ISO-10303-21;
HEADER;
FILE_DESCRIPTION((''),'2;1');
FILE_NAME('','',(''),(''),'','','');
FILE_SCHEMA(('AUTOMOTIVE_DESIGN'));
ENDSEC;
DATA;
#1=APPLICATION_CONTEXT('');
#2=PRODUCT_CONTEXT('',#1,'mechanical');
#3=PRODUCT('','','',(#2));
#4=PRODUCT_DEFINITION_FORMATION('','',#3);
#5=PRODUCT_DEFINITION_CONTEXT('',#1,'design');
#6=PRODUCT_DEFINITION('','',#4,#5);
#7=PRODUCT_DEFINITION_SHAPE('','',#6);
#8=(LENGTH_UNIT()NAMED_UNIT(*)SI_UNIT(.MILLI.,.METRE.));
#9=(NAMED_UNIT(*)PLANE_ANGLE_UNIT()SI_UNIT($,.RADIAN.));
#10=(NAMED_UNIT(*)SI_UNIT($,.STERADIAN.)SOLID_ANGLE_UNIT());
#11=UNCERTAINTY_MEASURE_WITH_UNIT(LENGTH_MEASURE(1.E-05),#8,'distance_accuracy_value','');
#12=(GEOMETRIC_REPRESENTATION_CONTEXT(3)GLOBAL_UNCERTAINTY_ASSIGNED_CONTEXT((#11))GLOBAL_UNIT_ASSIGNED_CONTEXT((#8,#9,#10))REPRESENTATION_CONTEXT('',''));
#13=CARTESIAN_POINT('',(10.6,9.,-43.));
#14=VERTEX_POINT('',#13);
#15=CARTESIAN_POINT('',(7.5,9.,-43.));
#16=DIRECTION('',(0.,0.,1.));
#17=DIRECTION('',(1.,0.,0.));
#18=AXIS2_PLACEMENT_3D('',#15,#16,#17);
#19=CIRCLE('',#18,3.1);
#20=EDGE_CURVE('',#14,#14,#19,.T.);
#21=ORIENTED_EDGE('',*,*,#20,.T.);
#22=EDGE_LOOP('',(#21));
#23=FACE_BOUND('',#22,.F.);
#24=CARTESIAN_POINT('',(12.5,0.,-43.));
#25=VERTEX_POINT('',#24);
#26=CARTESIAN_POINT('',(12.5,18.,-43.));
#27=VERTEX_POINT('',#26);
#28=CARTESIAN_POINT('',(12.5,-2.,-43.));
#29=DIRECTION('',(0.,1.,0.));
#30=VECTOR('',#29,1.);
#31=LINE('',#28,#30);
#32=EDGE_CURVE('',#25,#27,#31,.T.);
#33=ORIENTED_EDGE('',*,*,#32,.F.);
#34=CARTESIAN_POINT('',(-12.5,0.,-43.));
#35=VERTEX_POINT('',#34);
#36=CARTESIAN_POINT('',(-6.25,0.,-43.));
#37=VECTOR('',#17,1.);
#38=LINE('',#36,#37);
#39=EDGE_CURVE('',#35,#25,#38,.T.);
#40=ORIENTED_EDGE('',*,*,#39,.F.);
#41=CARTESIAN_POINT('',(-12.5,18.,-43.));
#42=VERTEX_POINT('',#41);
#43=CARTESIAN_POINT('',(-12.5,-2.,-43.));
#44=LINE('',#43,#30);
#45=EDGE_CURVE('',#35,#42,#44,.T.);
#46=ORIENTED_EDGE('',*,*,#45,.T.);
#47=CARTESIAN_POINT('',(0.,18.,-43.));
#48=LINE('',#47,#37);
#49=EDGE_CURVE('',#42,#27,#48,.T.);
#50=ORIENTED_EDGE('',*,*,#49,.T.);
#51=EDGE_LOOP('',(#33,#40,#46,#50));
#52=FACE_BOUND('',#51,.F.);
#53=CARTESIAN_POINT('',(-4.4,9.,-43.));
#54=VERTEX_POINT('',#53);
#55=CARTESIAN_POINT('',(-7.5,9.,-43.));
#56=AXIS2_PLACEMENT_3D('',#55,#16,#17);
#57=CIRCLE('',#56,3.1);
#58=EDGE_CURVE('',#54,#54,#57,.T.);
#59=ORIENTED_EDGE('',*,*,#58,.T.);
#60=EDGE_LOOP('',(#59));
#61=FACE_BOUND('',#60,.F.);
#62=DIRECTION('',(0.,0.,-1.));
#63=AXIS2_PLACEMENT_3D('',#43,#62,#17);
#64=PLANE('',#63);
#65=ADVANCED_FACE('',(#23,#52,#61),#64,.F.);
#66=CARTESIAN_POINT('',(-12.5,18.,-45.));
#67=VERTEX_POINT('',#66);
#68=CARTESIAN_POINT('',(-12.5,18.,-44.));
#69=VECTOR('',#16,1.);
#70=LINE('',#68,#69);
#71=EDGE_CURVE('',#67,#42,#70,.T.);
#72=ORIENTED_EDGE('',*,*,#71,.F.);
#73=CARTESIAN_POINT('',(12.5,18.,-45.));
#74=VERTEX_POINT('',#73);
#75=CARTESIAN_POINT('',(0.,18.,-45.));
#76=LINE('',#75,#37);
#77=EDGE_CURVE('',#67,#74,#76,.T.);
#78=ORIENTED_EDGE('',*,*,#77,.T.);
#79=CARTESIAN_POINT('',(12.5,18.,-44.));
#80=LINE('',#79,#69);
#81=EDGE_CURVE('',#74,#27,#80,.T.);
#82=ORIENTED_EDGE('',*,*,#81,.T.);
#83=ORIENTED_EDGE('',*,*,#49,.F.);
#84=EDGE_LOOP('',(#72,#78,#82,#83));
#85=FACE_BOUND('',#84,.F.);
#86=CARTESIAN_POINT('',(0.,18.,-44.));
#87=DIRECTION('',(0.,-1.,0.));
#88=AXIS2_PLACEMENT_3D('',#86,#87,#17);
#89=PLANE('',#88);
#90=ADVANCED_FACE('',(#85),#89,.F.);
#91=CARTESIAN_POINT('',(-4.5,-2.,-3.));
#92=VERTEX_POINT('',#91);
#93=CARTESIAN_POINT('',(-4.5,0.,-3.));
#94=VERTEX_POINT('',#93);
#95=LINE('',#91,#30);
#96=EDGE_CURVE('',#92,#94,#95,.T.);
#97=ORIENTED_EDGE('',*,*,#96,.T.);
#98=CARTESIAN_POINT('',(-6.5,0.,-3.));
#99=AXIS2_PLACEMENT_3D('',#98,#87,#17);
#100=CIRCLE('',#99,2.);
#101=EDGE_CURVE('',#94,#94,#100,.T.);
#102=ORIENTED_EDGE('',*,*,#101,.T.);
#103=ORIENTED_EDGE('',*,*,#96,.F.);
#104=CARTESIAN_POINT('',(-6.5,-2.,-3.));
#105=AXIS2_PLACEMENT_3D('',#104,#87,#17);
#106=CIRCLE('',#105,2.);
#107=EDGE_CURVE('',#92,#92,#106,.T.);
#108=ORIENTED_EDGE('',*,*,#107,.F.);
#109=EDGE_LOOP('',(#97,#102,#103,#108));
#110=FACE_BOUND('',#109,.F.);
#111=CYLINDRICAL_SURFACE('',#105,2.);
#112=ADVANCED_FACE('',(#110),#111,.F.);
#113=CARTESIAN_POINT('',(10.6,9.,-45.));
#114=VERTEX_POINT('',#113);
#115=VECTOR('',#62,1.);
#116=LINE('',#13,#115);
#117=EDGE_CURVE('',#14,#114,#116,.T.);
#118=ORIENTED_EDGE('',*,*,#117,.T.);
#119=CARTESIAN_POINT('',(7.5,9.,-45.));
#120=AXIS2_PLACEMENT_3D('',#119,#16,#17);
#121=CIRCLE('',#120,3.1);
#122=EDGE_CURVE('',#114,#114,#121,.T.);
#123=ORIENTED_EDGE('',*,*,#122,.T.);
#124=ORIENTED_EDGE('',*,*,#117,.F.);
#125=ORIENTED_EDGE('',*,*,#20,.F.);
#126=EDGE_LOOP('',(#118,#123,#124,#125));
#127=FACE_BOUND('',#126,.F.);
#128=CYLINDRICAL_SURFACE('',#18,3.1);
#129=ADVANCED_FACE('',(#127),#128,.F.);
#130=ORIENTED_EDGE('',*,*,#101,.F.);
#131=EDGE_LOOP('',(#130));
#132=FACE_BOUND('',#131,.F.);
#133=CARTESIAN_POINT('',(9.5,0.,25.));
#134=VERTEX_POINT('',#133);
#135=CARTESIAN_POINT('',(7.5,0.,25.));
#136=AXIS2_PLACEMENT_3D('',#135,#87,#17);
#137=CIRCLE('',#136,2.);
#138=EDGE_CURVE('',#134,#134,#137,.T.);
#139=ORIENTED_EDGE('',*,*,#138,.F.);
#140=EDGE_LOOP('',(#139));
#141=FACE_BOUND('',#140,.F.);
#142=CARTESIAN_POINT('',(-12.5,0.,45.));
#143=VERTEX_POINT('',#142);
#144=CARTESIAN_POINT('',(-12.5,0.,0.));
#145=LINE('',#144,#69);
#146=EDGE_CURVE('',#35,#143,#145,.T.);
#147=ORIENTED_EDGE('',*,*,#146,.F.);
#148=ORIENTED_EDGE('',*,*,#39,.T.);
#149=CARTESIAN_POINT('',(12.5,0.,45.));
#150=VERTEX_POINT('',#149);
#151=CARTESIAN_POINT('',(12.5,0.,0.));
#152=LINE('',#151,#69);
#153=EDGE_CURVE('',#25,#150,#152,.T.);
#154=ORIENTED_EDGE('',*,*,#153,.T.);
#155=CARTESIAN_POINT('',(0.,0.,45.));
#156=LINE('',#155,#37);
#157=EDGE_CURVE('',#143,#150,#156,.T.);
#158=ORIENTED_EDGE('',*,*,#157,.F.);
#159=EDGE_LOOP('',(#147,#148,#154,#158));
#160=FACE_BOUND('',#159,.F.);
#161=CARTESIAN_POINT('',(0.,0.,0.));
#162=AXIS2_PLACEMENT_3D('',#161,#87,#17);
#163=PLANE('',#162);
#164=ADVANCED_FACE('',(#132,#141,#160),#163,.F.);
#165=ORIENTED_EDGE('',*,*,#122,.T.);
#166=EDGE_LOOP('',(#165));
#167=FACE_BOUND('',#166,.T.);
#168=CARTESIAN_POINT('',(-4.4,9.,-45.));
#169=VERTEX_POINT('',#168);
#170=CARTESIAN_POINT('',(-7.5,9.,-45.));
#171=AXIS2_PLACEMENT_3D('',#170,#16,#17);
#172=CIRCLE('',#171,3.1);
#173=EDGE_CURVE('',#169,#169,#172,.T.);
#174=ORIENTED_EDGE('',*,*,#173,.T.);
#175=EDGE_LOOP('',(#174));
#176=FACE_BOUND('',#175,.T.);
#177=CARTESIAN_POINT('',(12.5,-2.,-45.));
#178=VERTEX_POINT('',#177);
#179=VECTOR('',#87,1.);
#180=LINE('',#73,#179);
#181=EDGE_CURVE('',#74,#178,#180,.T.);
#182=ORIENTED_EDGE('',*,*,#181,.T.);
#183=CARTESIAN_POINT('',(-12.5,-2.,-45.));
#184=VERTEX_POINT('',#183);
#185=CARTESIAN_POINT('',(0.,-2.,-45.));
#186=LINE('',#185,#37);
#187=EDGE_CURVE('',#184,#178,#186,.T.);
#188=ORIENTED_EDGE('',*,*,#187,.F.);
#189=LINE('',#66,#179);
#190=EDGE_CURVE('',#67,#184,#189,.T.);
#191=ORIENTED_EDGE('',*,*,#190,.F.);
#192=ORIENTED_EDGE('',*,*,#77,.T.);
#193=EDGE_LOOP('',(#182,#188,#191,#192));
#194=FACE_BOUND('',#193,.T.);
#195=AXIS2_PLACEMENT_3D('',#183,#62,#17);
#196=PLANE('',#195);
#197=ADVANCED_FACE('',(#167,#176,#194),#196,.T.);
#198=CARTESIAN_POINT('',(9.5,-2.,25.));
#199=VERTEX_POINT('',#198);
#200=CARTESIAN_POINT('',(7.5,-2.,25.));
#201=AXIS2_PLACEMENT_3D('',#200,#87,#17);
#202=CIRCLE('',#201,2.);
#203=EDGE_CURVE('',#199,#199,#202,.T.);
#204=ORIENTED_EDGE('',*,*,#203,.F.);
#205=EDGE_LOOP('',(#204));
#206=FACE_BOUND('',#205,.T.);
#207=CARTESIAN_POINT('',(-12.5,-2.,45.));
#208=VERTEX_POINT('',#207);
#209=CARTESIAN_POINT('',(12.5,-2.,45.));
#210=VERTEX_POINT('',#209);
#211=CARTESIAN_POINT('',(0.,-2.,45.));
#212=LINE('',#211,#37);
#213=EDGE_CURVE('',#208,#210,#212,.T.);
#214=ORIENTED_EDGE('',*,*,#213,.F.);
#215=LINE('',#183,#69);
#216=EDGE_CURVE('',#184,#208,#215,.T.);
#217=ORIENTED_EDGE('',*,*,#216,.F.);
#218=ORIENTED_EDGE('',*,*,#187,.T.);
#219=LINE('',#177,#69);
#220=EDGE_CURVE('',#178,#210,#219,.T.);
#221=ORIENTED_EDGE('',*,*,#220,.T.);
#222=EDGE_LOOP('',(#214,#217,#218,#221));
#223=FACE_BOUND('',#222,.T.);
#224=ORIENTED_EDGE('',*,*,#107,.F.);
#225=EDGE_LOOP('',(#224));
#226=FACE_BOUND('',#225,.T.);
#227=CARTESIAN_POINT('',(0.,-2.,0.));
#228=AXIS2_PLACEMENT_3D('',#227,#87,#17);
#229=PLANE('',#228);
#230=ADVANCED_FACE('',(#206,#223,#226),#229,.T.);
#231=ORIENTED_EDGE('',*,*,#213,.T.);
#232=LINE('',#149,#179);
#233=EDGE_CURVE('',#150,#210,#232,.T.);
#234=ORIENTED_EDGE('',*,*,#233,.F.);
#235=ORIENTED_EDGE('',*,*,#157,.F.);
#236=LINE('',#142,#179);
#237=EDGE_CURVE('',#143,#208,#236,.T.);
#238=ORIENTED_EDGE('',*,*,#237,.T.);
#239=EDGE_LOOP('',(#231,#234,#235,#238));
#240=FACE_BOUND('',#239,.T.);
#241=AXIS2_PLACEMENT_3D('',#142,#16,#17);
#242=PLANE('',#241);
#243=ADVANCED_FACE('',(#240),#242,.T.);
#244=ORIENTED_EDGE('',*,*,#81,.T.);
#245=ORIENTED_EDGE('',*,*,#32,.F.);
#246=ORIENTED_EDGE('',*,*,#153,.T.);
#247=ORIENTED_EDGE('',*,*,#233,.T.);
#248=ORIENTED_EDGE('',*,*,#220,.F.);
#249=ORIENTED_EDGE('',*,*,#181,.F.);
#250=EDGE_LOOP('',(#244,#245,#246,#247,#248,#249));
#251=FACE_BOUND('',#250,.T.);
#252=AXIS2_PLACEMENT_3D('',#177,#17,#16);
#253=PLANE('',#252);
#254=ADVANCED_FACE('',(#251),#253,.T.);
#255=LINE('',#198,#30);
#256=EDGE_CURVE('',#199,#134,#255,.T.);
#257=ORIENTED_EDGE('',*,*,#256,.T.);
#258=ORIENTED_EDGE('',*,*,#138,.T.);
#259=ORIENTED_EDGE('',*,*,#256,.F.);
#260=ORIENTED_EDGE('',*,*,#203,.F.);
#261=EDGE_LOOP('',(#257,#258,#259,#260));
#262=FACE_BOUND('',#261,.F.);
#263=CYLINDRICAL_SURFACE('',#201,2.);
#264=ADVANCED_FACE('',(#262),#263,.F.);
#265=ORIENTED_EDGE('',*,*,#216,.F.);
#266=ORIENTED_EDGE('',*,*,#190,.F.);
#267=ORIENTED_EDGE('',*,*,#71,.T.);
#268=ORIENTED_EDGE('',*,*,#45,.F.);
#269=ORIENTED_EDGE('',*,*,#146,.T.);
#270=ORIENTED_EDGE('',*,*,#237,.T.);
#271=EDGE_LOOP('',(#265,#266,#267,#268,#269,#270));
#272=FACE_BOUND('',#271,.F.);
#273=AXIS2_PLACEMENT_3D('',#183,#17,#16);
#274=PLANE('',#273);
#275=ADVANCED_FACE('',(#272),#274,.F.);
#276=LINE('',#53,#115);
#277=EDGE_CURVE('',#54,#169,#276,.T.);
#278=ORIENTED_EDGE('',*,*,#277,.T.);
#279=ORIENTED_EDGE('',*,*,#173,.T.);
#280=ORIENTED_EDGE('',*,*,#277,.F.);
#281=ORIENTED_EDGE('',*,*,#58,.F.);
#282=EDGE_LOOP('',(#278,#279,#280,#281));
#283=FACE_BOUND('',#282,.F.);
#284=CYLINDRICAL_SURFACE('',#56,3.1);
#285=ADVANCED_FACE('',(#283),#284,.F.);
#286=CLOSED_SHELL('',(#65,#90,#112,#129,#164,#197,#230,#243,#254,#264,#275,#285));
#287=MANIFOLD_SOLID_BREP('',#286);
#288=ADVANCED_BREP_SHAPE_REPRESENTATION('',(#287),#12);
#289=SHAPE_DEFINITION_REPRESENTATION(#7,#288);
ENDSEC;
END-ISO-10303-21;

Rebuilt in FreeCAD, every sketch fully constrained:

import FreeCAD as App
import Part
import Sketcher

V = App.Vector
Q = App.Units.Quantity


def add_polygon(sketch, points):
    """Adds a closed chain of lines whose ends are joined by coincident constraints."""
    first, n = sketch.GeometryCount, len(points)
    for a, b in zip(points, points[1:] + points[:1]):
        sketch.addGeometry(Part.LineSegment(App.Vector(*a, 0), App.Vector(*b, 0)), False)
    for i in range(n):
        sketch.addConstraint(Sketcher.Constraint("Coincident", first + i, 2, first + (i + 1) % n, 1))

doc = App.newDocument("Part")
params = doc.addObject("Spreadsheet::Sheet", "Params")
for row, (alias, value) in enumerate([
    ("sketch1_width", "25 mm"),
    ("sketch1_height", "90 mm"),
    ("pad1_length", "2 mm"),
    ("sketch2_width", "25 mm"),
    ("sketch2_height", "2 mm"),
    ("pad2_length", "20 mm"),
    ("sketch3_diameter", "4 mm"),
    ("pocket1_length", "25 mm"),
    ("sketch4_diameter", "6.2 mm"),
    ("pocket2_length", "25 mm"),
], start=1):
    params.set(f"A{row}", alias)
    params.set(f"B{row}", "=" + value)
    params.setAlias(f"B{row}", alias)

body = doc.addObject("PartDesign::Body", "Body")

# Sketch on XZ plane
sketch1 = doc.addObject("Sketcher::SketchObject", "Sketch")
body.addObject(sketch1)
sketch1.AttachmentSupport = (doc.XZ_Plane, [""])
sketch1.MapMode = "FlatFace"
add_polygon(sketch1, [(-12, 45), (-12, -45), (12, -45), (12, 45)])  # lines 0-3
sketch1.addConstraint([
    Sketcher.Constraint("Vertical", 0),
    Sketcher.Constraint("Horizontal", 1),
    Sketcher.Constraint("Vertical", 2),
    Sketcher.Constraint("Horizontal", 3),
    Sketcher.Constraint("Symmetric", 0, 2, 2, 2, -1, 1),
    Sketcher.Constraint("DistanceX", 1, 1, 1, 2, Q("25 mm")),
    Sketcher.Constraint("DistanceY", 0, 2, 0, 1, Q("90 mm")),
])
sketch1.setExpression("Constraints[9]", "Params.sketch1_width")
sketch1.setExpression("Constraints[10]", "Params.sketch1_height")
pad1 = doc.addObject("PartDesign::Pad", "Pad")
body.addObject(pad1)
pad1.Profile = sketch1
pad1.setExpression("Length", "Params.pad1_length")

# Sketch on XZ plane
sketch2 = doc.addObject("Sketcher::SketchObject", "Sketch001")
body.addObject(sketch2)
sketch2.AttachmentSupport = (doc.XZ_Plane, [""])
sketch2.MapMode = "FlatFace"
sketch2.AttachmentOffset = App.Placement(V(0, 0, 2), App.Rotation())
add_polygon(sketch2, [(-12.5, -43), (-12.5, -45), (12.5, -45), (12.5, -43)])  # lines 0-3
sketch2.addConstraint([
    Sketcher.Constraint("Vertical", 0),
    Sketcher.Constraint("Horizontal", 1),
    Sketcher.Constraint("Vertical", 2),
    Sketcher.Constraint("Horizontal", 3),
    Sketcher.Constraint("DistanceX", 1, 1, 1, 2, Q("25 mm")),
    Sketcher.Constraint("DistanceY", 0, 2, 0, 1, Q("2 mm")),
    Sketcher.Constraint("DistanceY", 0, 2, -1, 1, Q("45 mm")),
    Sketcher.Constraint("DistanceX", 0, 2, -1, 1, Q("12.5 mm")),
])
sketch2.setExpression("Constraints[8]", "Params.sketch2_width")
sketch2.setExpression("Constraints[9]", "Params.sketch2_height")
pad2 = doc.addObject("PartDesign::Pad", "Pad001")
body.addObject(pad2)
pad2.Profile = sketch2
pad2.setExpression("Length", "Params.pad2_length")
pad2.Reversed = True

# Sketch on XZ plane
sketch3 = doc.addObject("Sketcher::SketchObject", "Sketch002")
body.addObject(sketch3)
sketch3.AttachmentSupport = (doc.XZ_Plane, [""])
sketch3.MapMode = "FlatFace"
sketch3.AttachmentOffset = App.Placement(V(0, 0, 2), App.Rotation())
sketch3.addGeometry([
    Part.Circle(V(7.5, 25, 0), V(0, 0, 1), 2),
    Part.Circle(V(-6.5, -3, 0), V(0, 0, 1), 2),
], False)
sketch3.addConstraint([
    Sketcher.Constraint("Equal", 0, 1),
    Sketcher.Constraint("Diameter", 0, Q("4 mm")),
    Sketcher.Constraint("DistanceY", -1, 1, 0, 3, Q("25 mm")),
    Sketcher.Constraint("DistanceY", 1, 3, -1, 1, Q("3 mm")),
    Sketcher.Constraint("DistanceX", 1, 3, 0, 3, Q("14 mm")),
    Sketcher.Constraint("DistanceX", -1, 1, 0, 3, Q("7.5 mm")),
])
sketch3.setExpression("Constraints[1]", "Params.sketch3_diameter")
pocket1 = doc.addObject("PartDesign::Pocket", "Pocket")
body.addObject(pocket1)
pocket1.Profile = sketch3
pocket1.setExpression("Length", "Params.pocket1_length")

# Sketch on XY plane
sketch4 = doc.addObject("Sketcher::SketchObject", "Sketch003")
body.addObject(sketch4)
sketch4.AttachmentSupport = (doc.XY_Plane, [""])
sketch4.MapMode = "FlatFace"
sketch4.AttachmentOffset = App.Placement(V(0, 0, -43), App.Rotation())
sketch4.addGeometry([
    Part.Circle(V(7.5, 9, 0), V(0, 0, 1), 3.1),
    Part.Circle(V(-7.5, 9, 0), V(0, 0, 1), 3.1),
], False)
sketch4.addConstraint([
    Sketcher.Constraint("Equal", 0, 1),
    Sketcher.Constraint("Symmetric", 0, 3, 1, 3, -2),
    Sketcher.Constraint("Diameter", 0, Q("6.2 mm")),
    Sketcher.Constraint("DistanceY", -1, 1, 0, 3, Q("9 mm")),
    Sketcher.Constraint("DistanceX", 1, 3, 0, 3, Q("15 mm")),
])
sketch4.setExpression("Constraints[2]", "Params.sketch4_diameter")
pocket2 = doc.addObject("PartDesign::Pocket", "Pocket001")
body.addObject(pocket2)
pocket2.Profile = sketch4
pocket2.setExpression("Length", "Params.pocket2_length")

doc.recompute()
